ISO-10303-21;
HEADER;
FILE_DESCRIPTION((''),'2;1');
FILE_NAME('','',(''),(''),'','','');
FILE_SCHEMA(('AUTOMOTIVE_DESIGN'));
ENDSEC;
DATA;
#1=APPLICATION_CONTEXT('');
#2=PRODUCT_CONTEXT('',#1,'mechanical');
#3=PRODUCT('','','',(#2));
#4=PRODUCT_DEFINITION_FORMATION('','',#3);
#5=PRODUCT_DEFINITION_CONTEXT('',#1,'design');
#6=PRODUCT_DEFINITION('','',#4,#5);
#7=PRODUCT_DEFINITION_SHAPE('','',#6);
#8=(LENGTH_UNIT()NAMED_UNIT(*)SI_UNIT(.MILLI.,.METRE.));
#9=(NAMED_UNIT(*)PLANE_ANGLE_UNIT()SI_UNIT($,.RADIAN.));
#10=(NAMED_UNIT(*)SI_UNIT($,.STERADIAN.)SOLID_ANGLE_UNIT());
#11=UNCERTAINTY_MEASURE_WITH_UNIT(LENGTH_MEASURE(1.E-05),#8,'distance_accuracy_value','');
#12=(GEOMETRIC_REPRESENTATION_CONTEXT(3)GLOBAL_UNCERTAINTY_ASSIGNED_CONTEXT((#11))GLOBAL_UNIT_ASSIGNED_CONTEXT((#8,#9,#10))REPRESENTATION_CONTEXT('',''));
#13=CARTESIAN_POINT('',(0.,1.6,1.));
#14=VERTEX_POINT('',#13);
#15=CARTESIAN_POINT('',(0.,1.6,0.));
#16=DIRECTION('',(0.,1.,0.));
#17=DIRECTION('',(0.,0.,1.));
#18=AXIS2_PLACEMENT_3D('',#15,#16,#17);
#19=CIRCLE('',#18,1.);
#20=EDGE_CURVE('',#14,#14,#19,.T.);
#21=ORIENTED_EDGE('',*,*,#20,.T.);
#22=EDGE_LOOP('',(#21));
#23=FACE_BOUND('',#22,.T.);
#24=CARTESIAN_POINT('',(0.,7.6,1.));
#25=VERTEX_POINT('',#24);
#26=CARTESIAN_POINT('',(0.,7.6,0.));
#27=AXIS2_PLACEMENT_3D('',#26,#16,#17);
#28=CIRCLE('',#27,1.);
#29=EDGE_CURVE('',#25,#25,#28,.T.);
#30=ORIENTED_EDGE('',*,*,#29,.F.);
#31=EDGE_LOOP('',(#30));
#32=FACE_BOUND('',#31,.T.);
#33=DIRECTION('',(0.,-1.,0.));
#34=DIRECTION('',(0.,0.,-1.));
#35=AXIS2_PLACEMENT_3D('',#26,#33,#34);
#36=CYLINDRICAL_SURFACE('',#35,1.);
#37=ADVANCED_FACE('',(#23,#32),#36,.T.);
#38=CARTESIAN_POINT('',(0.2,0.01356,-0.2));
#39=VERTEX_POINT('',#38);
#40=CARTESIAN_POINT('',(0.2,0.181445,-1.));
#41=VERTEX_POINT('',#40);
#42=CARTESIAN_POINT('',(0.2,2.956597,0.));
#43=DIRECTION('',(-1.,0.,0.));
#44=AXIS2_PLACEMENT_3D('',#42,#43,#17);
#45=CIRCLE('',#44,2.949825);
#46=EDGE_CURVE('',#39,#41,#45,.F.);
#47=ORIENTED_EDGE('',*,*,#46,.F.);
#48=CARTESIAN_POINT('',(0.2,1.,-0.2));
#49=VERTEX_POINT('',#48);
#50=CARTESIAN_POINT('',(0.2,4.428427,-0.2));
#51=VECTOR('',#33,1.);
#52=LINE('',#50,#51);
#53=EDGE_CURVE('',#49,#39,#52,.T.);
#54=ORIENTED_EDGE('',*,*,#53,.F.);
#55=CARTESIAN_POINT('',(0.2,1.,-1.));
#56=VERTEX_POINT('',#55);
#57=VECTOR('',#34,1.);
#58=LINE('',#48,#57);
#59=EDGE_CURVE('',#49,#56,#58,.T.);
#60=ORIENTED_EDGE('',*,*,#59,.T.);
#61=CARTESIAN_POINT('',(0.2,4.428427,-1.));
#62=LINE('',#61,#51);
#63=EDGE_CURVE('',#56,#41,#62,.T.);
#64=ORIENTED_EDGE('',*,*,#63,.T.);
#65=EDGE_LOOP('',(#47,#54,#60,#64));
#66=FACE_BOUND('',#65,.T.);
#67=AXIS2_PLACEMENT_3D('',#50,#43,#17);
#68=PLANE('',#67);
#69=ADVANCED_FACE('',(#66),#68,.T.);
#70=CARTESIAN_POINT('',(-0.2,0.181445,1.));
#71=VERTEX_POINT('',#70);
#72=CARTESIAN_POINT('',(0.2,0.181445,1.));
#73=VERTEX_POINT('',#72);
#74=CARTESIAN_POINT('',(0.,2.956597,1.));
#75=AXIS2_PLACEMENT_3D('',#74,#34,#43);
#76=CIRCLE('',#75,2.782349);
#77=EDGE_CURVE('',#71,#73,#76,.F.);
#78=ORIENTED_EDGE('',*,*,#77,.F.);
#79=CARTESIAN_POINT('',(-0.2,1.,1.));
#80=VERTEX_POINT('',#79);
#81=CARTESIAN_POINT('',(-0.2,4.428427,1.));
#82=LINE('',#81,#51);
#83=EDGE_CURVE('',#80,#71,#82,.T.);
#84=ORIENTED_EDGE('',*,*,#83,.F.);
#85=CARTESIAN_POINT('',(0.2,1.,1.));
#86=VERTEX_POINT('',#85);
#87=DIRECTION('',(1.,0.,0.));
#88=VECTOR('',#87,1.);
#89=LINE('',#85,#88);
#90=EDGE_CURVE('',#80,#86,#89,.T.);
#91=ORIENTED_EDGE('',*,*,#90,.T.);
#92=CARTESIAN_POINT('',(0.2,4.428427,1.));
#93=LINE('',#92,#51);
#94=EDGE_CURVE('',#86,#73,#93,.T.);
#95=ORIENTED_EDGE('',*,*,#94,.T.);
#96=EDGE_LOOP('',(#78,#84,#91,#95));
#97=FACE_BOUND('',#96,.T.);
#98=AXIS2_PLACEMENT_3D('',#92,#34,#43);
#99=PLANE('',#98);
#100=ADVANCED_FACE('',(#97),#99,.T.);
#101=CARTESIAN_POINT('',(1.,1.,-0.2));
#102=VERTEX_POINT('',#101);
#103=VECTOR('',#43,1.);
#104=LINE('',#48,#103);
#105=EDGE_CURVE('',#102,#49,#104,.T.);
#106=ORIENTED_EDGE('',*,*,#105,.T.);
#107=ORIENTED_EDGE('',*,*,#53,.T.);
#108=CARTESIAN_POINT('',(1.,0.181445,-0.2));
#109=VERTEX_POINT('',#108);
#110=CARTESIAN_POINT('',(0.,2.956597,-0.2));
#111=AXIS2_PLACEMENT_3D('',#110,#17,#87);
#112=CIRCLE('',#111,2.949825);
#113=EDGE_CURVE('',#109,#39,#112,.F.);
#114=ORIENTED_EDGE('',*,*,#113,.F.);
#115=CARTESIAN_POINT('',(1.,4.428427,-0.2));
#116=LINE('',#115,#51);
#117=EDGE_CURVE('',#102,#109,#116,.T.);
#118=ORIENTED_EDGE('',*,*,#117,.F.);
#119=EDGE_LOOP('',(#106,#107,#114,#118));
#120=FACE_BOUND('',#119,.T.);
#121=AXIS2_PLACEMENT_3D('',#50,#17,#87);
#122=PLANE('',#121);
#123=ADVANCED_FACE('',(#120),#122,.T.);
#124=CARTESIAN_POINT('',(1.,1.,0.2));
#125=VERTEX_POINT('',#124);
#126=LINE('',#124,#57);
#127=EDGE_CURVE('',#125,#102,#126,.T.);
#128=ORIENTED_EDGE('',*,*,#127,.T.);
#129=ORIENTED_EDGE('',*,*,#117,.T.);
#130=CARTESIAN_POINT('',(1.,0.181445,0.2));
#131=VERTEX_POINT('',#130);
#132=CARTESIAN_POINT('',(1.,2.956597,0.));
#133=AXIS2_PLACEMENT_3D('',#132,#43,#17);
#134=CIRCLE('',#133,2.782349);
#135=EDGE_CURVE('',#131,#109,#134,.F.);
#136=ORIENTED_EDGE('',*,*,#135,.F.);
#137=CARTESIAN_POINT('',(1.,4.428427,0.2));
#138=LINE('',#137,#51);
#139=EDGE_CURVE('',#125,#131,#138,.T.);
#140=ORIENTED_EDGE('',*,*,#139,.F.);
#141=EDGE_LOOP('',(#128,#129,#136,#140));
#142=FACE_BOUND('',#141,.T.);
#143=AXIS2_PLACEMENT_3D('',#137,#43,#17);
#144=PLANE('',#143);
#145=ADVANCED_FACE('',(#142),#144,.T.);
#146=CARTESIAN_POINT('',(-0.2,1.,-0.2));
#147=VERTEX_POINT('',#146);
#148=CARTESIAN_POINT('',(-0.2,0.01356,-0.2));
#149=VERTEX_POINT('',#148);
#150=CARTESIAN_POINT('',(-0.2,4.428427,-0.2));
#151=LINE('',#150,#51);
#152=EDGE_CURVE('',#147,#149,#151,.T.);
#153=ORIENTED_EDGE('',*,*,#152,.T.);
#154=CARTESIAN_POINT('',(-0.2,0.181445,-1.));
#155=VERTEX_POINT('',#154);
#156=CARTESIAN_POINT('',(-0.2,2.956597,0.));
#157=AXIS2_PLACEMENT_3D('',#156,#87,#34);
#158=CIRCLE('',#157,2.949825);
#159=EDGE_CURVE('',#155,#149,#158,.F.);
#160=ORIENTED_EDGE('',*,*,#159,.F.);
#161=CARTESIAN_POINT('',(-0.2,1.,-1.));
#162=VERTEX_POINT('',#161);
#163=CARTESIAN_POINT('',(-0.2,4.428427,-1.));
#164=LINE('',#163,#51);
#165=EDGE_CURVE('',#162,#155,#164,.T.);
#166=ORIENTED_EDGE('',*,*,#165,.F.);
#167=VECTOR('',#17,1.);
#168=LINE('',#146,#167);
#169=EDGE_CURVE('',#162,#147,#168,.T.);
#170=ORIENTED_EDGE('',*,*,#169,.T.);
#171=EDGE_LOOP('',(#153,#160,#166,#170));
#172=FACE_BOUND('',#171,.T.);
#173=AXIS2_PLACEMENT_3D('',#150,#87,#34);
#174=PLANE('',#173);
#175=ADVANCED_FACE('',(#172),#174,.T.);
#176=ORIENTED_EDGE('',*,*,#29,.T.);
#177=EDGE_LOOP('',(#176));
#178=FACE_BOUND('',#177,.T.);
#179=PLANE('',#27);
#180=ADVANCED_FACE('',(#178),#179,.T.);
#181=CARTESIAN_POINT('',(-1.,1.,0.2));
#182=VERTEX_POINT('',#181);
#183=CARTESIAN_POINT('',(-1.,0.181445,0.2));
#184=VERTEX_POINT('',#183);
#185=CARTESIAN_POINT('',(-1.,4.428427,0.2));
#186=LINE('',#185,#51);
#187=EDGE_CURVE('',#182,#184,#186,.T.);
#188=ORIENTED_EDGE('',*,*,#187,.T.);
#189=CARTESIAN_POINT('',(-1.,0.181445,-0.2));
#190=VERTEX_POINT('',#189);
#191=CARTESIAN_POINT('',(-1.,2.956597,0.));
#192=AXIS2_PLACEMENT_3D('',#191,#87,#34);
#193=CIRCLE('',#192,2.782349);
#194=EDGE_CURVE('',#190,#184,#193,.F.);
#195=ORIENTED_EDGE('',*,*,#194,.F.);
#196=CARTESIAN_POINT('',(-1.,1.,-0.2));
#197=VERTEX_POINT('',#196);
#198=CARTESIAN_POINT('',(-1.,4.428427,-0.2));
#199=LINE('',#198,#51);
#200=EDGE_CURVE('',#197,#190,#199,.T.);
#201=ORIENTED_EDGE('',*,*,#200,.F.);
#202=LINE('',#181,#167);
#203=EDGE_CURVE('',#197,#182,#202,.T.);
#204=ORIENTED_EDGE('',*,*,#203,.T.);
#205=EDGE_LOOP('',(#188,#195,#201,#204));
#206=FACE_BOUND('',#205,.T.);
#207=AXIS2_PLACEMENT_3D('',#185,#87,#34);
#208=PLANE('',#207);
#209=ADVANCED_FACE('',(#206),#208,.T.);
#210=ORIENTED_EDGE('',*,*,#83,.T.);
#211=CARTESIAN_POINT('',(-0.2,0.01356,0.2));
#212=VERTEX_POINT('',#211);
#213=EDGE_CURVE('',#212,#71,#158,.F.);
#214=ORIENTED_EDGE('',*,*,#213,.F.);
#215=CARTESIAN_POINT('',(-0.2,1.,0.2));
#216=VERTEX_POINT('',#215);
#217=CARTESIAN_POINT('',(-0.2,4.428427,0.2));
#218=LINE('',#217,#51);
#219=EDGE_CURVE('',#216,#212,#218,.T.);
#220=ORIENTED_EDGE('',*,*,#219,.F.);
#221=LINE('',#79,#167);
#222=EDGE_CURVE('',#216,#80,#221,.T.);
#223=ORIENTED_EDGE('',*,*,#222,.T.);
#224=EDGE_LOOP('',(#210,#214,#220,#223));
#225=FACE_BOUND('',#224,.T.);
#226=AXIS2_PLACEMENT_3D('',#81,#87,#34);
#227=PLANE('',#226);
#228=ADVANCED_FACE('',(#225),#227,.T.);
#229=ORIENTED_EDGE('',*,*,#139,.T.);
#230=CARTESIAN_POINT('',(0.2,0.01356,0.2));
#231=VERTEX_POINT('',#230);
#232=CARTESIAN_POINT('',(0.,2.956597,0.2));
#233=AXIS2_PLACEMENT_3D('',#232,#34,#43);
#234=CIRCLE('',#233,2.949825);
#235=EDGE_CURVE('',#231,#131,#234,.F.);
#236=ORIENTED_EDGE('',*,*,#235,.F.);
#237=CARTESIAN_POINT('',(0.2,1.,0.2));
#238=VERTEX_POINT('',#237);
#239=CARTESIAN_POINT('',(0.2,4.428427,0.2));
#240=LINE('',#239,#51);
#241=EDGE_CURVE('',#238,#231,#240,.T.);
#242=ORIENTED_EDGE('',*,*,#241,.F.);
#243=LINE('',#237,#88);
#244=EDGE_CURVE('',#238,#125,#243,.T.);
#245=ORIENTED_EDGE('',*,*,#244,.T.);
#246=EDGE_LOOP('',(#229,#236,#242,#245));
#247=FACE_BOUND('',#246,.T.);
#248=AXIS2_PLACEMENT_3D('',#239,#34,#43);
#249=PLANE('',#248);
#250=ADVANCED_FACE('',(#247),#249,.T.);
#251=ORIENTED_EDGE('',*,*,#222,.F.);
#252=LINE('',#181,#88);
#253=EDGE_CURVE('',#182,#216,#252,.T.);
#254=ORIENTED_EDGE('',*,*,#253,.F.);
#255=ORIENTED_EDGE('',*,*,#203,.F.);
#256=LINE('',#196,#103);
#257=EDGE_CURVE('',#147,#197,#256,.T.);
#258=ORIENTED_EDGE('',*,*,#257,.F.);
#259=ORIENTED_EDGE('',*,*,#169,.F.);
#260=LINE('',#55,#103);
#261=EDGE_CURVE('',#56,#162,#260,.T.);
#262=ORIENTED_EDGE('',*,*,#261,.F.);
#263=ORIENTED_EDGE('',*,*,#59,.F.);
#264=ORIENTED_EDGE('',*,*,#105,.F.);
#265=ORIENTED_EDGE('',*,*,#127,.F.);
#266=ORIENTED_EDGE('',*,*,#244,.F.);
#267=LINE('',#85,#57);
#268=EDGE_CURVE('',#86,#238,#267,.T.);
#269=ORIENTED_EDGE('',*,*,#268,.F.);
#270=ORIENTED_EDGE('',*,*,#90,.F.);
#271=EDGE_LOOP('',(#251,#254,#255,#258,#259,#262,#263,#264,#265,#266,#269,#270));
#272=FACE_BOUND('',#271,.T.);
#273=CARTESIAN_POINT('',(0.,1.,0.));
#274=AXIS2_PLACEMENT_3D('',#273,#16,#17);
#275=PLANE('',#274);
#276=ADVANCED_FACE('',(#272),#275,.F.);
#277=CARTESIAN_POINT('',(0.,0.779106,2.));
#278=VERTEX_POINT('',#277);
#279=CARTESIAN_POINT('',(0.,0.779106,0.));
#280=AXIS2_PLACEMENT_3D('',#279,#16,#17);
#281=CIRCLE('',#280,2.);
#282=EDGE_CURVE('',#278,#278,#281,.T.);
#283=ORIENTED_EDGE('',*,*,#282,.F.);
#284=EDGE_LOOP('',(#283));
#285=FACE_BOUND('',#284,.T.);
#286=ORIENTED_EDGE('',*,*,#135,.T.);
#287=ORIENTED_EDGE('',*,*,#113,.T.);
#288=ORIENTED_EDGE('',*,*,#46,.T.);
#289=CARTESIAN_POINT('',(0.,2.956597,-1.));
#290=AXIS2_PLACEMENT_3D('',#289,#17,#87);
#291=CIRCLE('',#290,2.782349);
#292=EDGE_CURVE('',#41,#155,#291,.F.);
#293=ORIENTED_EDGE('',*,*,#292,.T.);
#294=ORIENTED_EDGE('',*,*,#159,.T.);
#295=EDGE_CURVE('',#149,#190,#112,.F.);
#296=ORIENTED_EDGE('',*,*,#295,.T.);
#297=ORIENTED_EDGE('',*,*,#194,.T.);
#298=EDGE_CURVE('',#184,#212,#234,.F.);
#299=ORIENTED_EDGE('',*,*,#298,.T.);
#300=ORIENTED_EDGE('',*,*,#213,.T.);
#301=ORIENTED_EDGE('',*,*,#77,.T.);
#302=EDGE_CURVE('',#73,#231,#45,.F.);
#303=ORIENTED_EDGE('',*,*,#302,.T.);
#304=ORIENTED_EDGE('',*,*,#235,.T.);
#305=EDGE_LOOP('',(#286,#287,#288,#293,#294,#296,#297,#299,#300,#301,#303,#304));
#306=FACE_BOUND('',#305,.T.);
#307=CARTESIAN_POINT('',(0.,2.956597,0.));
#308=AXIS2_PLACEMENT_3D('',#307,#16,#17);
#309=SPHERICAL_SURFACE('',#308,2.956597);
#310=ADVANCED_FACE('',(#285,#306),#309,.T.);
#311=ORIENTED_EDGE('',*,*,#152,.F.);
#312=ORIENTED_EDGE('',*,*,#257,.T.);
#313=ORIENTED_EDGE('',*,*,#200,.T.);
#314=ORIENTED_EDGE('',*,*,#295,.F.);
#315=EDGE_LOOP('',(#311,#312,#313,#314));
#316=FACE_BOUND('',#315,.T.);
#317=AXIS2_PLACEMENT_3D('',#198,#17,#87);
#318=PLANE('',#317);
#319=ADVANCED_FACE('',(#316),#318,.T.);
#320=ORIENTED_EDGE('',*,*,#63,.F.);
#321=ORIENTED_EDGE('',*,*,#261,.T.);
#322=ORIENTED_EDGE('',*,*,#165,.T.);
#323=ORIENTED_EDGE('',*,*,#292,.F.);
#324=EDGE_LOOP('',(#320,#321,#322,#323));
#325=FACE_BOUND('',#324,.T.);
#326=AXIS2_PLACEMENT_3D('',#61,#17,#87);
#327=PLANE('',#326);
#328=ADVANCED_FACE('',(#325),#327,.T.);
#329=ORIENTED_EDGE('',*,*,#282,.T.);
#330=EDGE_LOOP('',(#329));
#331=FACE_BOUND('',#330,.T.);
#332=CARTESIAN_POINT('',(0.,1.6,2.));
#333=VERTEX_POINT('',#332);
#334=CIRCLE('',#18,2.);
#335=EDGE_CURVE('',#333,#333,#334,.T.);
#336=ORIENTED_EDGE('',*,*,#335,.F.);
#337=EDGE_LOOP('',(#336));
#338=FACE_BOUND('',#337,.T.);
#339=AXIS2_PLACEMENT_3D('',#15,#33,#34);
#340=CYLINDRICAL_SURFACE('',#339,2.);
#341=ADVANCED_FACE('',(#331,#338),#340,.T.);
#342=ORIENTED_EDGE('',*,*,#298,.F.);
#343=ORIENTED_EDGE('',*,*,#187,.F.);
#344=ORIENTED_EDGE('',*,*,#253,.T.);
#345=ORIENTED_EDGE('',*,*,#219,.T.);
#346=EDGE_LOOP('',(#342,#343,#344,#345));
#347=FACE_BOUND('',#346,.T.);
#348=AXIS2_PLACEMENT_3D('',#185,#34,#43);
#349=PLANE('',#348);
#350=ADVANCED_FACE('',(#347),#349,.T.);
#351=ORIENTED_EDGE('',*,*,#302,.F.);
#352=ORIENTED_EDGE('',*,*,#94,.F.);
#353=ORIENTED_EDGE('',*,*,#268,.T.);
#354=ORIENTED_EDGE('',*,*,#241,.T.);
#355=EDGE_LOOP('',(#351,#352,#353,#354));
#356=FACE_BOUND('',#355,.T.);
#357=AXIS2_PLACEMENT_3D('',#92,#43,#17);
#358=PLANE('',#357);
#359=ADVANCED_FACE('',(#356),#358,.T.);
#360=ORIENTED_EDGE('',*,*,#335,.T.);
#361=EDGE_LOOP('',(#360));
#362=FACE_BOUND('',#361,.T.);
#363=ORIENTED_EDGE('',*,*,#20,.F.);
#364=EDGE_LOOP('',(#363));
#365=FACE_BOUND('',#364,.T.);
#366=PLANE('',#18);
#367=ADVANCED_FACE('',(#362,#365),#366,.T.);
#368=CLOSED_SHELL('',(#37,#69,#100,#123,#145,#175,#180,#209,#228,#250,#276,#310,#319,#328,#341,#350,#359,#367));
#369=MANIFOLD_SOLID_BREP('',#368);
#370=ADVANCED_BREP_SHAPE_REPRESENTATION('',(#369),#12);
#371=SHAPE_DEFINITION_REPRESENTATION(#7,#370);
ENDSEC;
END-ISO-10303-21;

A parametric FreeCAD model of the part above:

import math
import FreeCAD as App
import Part
import Sketcher
from FreeCAD import Vector
Q = App.Units.Quantity


def add_polygon(sketch, points):
    """Adds a closed chain of lines whose ends are joined by coincident constraints."""
    first, n = sketch.GeometryCount, len(points)
    for a, b in zip(points, points[1:] + points[:1]):
        sketch.addGeometry(Part.LineSegment(App.Vector(*a, 0), App.Vector(*b, 0)), False)
    for i in range(n):
        sketch.addConstraint(Sketcher.Constraint("Coincident", first + i, 2, first + (i + 1) % n, 1))

doc = App.newDocument("Part")
body = doc.addObject("PartDesign::Body", "Body")

# Sketch on XZ plane
sketch1 = doc.addObject("Sketcher::SketchObject", "Sketch")
body.addObject(sketch1)
sketch1.AttachmentSupport = (doc.XZ_Plane, [""])
sketch1.MapMode = "FlatFace"
sketch1.addGeometry(Part.Circle(Vector(0, 0, 0), Vector(0, 0, 1), 2), False)
sketch1.addConstraint([
    Sketcher.Constraint("Coincident", 0, 3, -1, 1),
    Sketcher.Constraint("Diameter", 0, Q("4 mm")),
])
pad1 = doc.addObject("PartDesign::Pad", "Pad")
body.addObject(pad1)
pad1.Profile = sketch1
pad1.Length = 1.6
pad1.Reversed = True

# Sketch on XZ plane
sketch2 = doc.addObject("Sketcher::SketchObject", "Sketch001")
body.addObject(sketch2)
sketch2.AttachmentSupport = (doc.XZ_Plane, [""])
sketch2.MapMode = "FlatFace"
sketch2.AttachmentOffset = App.Placement(Vector(0, 0, -1.6), App.Rotation())
sketch2.addGeometry(Part.Circle(Vector(0, 0, 0), Vector(0, 0, 1), 1), False)
sketch2.addConstraint([
    Sketcher.Constraint("Coincident", 0, 3, -1, 1),
    Sketcher.Constraint("Diameter", 0, Q("2 mm")),
])
pad2 = doc.addObject("PartDesign::Pad", "Pad001")
body.addObject(pad2)
pad2.Profile = sketch2
pad2.Length = 6
pad2.Reversed = True

# Sketch on YZ plane
sketch3 = doc.addObject("Sketcher::SketchObject", "Sketch002")
body.addObject(sketch3)
sketch3.AttachmentSupport = (doc.YZ_Plane, [""])
sketch3.MapMode = "FlatFace"
sketch3.addGeometry([
    Part.ArcOfCircle(Part.Circle(Vector(3, 0, 0), Vector(0, 0, 1), 3), math.radians(180), math.radians(223)),
    Part.LineSegment(Vector(0, 0, 0), Vector(-0.9, 0, 0)),
    Part.LineSegment(Vector(-0.9, 0, 0), Vector(-0.9, -3.5, 0)),
    Part.LineSegment(Vector(-0.9, -3.5, 0), Vector(0.8, -2, 0)),
], False)
sketch3.addConstraint([
    Sketcher.Constraint("Coincident", 0, 1, 1, 1),
    Sketcher.Constraint("Coincident", 1, 2, 2, 1),
    Sketcher.Constraint("Coincident", 2, 2, 3, 1),
    Sketcher.Constraint("Coincident", 3, 2, 0, 2),
    Sketcher.Constraint("Horizontal", 1),
    Sketcher.Constraint("Vertical", 2),
    Sketcher.Constraint("Coincident", 0, 1, -1, 1),
    Sketcher.Constraint("PointOnObject", 0, 3, -1),
    Sketcher.Constraint("DistanceY", 3, 2, -1, 1, Q("2 mm")),
    Sketcher.Constraint("DistanceY", 2, 2, 2, 1, Q("3.5435 mm")),
    Sketcher.Constraint("Radius", 0, Q("2.956597 mm")),
    Sketcher.Constraint("DistanceX", 1, 2, 1, 1, Q("0.936416 mm")),
])
groove = doc.addObject("PartDesign::Groove", "Groove")
body.addObject(groove)
groove.Profile = sketch3
groove.ReferenceAxis = (sketch3, ["H_Axis"])
groove.Angle = 360

# Sketch on XZ plane
sketch4 = doc.addObject("Sketcher::SketchObject", "Sketch003")
body.addObject(sketch4)
sketch4.AttachmentSupport = (doc.XZ_Plane, [""])
sketch4.MapMode = "FlatFace"
sketch4.AttachmentOffset = App.Placement(Vector(0, 0, 5), App.Rotation())
add_polygon(sketch4, [(-1, 0.2), (-0.2, 0.2), (-0.2, 1), (0.2, 1), (0.2, 0.2), (1, 0.2), (1, -0.2), (0.2, -0.2), (0.2, -1), (-0.2, -1), (-0.2, -0.2), (-1, -0.2)])  # lines 0-11
sketch4.addConstraint([
    Sketcher.Constraint("Horizontal", 0),
    Sketcher.Constraint("Vertical", 1),
    Sketcher.Constraint("Horizontal", 2),
    Sketcher.Constraint("Vertical", 3),
    Sketcher.Constraint("Horizontal", 4),
    Sketcher.Constraint("Vertical", 5),
    Sketcher.Constraint("Horizontal", 6),
    Sketcher.Constraint("Vertical", 7),
    Sketcher.Constraint("Horizontal", 8),
    Sketcher.Constraint("Vertical", 9),
    Sketcher.Constraint("Horizontal", 10),
    Sketcher.Constraint("Vertical", 11),
    Sketcher.Constraint("Symmetric", 0, 2, 6, 2, -1, 1),
    Sketcher.Constraint("Symmetric", 2, 2, 8, 2, -1, 1),
    Sketcher.Constraint("Symmetric", 4, 2, 10, 2, -1, 1),
    Sketcher.Constraint("Symmetric", 0, 2, 3, 2, -2),
    Sketcher.Constraint("Equal", 10, 1),
    Sketcher.Constraint("Equal", 8, 5),
    Sketcher.Constraint("DistanceX", 0, 1, 0, 2, Q("0.8 mm")),
    Sketcher.Constraint("DistanceX", 2, 1, 2, 2, Q("0.4 mm")),
])
pocket1 = doc.addObject("PartDesign::Pocket", "Pocket")
body.addObject(pocket1)
pocket1.Profile = sketch4
pocket1.Length = 6

doc.recompute()
